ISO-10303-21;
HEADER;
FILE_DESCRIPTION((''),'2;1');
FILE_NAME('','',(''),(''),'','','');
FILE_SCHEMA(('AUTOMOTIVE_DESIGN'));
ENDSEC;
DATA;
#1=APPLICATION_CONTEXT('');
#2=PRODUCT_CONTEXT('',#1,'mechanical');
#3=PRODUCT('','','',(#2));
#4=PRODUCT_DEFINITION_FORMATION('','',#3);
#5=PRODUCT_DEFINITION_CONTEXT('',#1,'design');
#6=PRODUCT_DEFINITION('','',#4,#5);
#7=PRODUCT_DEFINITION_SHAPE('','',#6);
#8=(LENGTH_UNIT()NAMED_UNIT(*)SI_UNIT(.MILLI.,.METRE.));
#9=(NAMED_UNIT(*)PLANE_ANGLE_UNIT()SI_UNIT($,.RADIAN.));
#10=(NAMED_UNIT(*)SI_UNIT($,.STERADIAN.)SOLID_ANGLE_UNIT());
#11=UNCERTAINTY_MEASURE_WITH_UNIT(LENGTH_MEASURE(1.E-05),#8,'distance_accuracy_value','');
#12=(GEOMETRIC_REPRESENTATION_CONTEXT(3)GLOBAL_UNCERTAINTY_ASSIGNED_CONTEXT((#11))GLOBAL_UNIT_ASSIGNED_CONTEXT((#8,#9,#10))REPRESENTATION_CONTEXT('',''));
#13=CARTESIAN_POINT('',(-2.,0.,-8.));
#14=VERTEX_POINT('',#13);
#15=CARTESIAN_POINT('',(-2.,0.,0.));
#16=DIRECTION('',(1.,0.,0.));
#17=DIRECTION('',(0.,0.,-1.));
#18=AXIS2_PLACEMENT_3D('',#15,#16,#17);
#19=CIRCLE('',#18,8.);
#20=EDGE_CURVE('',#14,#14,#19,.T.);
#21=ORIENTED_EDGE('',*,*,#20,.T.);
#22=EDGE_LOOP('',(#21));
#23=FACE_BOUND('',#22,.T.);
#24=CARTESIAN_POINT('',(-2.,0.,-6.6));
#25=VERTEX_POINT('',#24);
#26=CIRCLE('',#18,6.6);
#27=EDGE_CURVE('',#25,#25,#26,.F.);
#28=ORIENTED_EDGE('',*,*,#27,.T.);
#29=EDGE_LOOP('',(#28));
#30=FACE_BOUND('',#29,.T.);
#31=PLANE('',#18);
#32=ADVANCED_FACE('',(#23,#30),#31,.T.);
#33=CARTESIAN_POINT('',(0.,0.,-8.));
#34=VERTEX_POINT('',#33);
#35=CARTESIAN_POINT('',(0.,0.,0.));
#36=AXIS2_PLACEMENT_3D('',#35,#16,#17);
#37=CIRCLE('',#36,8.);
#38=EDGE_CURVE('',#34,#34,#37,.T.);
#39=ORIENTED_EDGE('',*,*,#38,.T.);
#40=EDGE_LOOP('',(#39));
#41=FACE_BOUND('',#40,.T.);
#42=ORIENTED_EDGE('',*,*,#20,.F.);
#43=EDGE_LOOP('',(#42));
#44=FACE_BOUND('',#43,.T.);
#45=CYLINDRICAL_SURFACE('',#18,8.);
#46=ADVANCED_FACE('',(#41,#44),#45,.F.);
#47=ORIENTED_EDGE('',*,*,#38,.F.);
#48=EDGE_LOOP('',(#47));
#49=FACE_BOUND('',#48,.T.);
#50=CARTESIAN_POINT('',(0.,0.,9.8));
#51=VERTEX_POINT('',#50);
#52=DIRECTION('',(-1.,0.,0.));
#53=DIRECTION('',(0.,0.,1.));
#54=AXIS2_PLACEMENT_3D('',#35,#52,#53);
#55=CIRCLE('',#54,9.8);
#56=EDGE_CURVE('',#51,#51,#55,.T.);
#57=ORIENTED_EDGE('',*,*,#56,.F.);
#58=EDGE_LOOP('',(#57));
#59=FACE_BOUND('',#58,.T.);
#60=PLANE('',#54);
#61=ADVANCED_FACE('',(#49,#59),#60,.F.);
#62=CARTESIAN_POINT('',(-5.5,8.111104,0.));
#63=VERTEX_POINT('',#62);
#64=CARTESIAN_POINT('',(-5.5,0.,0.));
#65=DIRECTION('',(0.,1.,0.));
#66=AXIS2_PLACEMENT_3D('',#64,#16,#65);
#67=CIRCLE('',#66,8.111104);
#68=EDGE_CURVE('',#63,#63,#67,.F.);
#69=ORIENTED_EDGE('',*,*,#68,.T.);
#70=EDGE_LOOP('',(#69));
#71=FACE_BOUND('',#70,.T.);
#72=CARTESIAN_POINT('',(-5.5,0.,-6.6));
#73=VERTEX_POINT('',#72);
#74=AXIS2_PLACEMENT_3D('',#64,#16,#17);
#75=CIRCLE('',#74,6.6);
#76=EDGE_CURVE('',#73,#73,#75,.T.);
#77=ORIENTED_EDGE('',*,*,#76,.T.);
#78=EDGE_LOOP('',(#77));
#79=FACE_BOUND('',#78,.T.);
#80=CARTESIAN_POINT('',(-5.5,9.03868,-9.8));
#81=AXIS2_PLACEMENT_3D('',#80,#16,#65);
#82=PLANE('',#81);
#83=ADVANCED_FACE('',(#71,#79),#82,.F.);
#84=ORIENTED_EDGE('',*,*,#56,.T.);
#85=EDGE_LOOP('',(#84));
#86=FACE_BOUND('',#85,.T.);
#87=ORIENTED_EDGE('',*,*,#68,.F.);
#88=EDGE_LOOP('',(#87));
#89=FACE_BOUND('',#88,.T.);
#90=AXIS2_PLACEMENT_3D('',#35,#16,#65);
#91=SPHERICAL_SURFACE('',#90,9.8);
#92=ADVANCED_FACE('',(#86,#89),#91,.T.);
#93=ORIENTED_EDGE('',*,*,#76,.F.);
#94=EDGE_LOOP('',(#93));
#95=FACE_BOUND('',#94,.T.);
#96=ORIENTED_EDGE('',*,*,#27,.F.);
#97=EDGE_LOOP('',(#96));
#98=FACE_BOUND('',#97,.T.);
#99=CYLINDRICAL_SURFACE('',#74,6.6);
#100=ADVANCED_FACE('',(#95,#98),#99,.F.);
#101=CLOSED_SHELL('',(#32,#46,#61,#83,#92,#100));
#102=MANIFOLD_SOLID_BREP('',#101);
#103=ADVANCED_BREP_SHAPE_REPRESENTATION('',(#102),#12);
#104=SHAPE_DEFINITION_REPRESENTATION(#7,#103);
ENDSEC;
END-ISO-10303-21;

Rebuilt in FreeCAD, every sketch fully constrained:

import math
import FreeCAD as App
import Part
import Sketcher

V = App.Vector
Q = App.Units.Quantity

doc = App.newDocument("Part")
params = doc.addObject("Spreadsheet::Sheet", "Params")
for row, (alias, value) in enumerate([
    ("sketch1_radius", "9.8 mm"),
    ("revolution_angle", "180 deg"),
    ("sketch3_diameter", "13.2 mm"),
    ("sketch4_diameter", "16 mm"),
    ("pocket3_length", "2 mm"),
], start=1):
    params.set(f"A{row}", alias)
    params.set(f"B{row}", "=" + value)
    params.setAlias(f"B{row}", alias)

body = doc.addObject("PartDesign::Body", "Body")

# Sketch on YZ plane
sketch1 = body.newObject("Sketcher::SketchObject", "Sketch")
sketch1.AttachmentSupport = (doc.getObject("YZ_Plane"), [""])
sketch1.MapMode = "FlatFace"
sketch1.addGeometry([
    Part.LineSegment(V(-9.8, 0, 0), V(9.8, 0, 0)),
    Part.ArcOfCircle(Part.Circle(V(0, 0, 0), V(0, 0, 1), 9.8), math.radians(0), math.radians(180)),
], False)
sketch1.addConstraint([
    Sketcher.Constraint("Coincident", 0, 1, 1, 2),
    Sketcher.Constraint("Coincident", 1, 1, 0, 2),
    Sketcher.Constraint("Horizontal", 0),
    Sketcher.Constraint("Coincident", 1, 3, -1, 1),
    Sketcher.Constraint("PointOnObject", 0, 1, -1),
    Sketcher.Constraint("Radius", 1, Q("9.8 mm")),
])
sketch1.setExpression("Constraints[5]", "Params.sketch1_radius")
revolution = body.newObject("PartDesign::Revolution", "Revolution")
revolution.Profile = sketch1
revolution.ReferenceAxis = (sketch1, ["H_Axis"])
revolution.setExpression("Angle", "Params.revolution_angle")
revolution.Reversed = True

# Sketch on XY plane
sketch2 = body.newObject("Sketcher::SketchObject", "Sketch001")
sketch2.AttachmentSupport = (doc.getObject("XY_Plane"), [""])
sketch2.MapMode = "FlatFace"
sketch2.addGeometry([
    Part.LineSegment(V(-10.439169, 9.03868, 0), V(-10.439169, -9.903035, 0)),
    Part.LineSegment(V(-10.439169, -9.903035, 0), V(-5.5, -9.903035, 0)),
    Part.LineSegment(V(-5.5, -9.903035, 0), V(-5.5, 9.03868, 0)),
    Part.LineSegment(V(-5.5, 9.03868, 0), V(-10.439169, 9.03868, 0)),
], False)
sketch2.addConstraint([
    Sketcher.Constraint("Coincident", 0, 2, 1, 1),
    Sketcher.Constraint("Coincident", 1, 2, 2, 1),
    Sketcher.Constraint("Coincident", 2, 2, 3, 1),
    Sketcher.Constraint("Coincident", 3, 2, 0, 1),
    Sketcher.Constraint("Vertical", 0),
    Sketcher.Constraint("Horizontal", 1),
    Sketcher.Constraint("Vertical", 2),
    Sketcher.Constraint("Horizontal", 3),
    Sketcher.Constraint("DistanceX", 1, 2, -1, 1, Q("5.5 mm")),
    Sketcher.Constraint("DistanceX", 1, 1, 1, 2, Q("4.939169 mm")),
    Sketcher.Constraint("DistanceY", 0, 2, 0, 1, Q("18.941715 mm")),
    Sketcher.Constraint("DistanceY", -1, 1, 2, 2, Q("9.03868 mm")),
])
pocket1 = body.newObject("PartDesign::Pocket", "Pocket")
pocket1.Profile = sketch2
pocket1.Type = "ThroughAll"
pocket1.Midplane = True

# Sketch on YZ plane
sketch3 = body.newObject("Sketcher::SketchObject", "Sketch002")
sketch3.AttachmentSupport = (doc.getObject("YZ_Plane"), [""])
sketch3.MapMode = "FlatFace"
sketch3.addGeometry(Part.Circle(V(0, 0, 0), V(0, 0, 1), 6.6), False)
sketch3.addConstraint([
    Sketcher.Constraint("Coincident", 0, 3, -1, 1),
    Sketcher.Constraint("Diameter", 0, Q("13.2 mm")),
])
sketch3.setExpression("Constraints[1]", "Params.sketch3_diameter")
pocket2 = body.newObject("PartDesign::Pocket", "Pocket001")
pocket2.Profile = sketch3
pocket2.Type = "ThroughAll"

# Sketch on YZ plane
sketch4 = body.newObject("Sketcher::SketchObject", "Sketch003")
sketch4.AttachmentSupport = (doc.getObject("YZ_Plane"), [""])
sketch4.MapMode = "FlatFace"
sketch4.addGeometry(Part.Circle(V(0, 0, 0), V(0, 0, 1), 8), False)
sketch4.addConstraint([
    Sketcher.Constraint("Coincident", 0, 3, -1, 1),
    Sketcher.Constraint("Diameter", 0, Q("16 mm")),
])
sketch4.setExpression("Constraints[1]", "Params.sketch4_diameter")
pocket3 = body.newObject("PartDesign::Pocket", "Pocket002")
pocket3.Profile = sketch4
pocket3.setExpression("Length", "Params.pocket3_length")

doc.recompute()
